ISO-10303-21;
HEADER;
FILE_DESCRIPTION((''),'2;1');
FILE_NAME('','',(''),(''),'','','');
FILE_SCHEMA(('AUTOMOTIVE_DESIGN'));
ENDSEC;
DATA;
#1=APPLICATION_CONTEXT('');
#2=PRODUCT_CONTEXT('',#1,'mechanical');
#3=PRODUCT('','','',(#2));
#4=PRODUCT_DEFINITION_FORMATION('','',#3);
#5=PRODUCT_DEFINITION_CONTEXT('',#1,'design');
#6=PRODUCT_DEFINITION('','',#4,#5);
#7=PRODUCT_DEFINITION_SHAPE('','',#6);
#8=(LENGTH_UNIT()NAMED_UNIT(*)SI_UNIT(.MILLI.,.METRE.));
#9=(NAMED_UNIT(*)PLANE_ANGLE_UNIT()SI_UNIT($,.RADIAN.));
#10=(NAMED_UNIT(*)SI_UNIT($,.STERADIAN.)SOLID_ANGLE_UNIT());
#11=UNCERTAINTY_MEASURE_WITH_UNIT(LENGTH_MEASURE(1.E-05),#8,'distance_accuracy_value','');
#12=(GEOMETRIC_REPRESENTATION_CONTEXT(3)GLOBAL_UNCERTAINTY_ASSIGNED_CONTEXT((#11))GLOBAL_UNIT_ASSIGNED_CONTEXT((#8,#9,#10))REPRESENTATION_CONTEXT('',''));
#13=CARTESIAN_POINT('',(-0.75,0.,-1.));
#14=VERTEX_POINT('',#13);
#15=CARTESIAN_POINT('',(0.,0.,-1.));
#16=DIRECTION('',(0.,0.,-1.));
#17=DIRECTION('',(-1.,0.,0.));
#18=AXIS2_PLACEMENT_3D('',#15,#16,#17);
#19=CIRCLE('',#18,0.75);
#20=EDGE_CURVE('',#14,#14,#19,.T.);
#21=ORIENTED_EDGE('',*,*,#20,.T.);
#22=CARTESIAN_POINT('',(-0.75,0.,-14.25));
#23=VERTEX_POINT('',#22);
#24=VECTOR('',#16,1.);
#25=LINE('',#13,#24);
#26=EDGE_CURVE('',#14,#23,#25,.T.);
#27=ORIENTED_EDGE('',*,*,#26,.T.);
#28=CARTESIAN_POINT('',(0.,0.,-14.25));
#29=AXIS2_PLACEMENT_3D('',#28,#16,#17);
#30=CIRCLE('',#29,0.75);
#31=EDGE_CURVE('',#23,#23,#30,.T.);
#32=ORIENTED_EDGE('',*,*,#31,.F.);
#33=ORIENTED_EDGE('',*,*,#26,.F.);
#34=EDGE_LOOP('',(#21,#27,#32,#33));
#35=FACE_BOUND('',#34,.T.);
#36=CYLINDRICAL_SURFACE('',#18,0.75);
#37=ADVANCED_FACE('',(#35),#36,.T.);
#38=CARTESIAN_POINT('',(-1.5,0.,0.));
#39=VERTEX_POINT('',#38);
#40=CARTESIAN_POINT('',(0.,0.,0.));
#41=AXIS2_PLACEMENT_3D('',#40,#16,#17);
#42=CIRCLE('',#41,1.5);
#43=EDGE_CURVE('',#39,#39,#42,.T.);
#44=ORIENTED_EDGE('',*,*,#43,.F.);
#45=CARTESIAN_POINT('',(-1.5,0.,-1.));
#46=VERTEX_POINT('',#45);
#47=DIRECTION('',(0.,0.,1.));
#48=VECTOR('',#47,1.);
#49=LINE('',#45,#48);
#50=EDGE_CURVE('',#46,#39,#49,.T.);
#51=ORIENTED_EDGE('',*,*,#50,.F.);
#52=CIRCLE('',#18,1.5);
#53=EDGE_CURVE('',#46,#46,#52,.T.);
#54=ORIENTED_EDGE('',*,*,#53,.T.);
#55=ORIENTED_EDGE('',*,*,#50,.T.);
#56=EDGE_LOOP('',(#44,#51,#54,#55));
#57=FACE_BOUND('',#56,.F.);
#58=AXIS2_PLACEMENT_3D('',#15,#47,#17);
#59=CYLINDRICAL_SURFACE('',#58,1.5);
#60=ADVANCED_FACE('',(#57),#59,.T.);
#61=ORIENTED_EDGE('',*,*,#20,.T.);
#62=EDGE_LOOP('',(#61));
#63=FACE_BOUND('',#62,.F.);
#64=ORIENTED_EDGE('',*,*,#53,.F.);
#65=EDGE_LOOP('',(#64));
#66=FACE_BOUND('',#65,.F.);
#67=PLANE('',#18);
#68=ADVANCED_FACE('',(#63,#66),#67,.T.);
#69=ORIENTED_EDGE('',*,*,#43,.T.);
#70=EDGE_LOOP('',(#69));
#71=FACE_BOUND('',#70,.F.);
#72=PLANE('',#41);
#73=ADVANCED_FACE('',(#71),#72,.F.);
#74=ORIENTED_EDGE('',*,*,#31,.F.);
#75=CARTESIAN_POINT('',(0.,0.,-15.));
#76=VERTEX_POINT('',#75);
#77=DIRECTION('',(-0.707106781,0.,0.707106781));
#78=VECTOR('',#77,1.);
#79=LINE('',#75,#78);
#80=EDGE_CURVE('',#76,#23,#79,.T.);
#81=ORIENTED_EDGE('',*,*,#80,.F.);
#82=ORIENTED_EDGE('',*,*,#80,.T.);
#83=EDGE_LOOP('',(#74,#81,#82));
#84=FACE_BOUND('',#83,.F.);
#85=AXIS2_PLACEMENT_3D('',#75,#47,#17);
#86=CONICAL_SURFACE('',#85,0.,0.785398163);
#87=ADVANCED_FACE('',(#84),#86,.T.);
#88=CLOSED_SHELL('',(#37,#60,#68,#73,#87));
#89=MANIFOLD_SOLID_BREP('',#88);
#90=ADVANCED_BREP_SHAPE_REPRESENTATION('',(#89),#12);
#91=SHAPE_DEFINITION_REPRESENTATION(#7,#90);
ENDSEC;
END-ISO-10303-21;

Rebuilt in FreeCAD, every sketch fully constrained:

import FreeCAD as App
import Part
import Sketcher
from FreeCAD import Vector
Q = App.Units.Quantity

doc = App.newDocument("Part")
body = doc.addObject("PartDesign::Body", "Body")

sketch1 = body.newObject("Sketcher::SketchObject", "Sketch")
sketch1.AttachmentSupport = (doc.getObject("XZ_Plane"), [""])
sketch1.MapMode = "FlatFace"
sketch1.addGeometry(Part.LineSegment(Vector(-1.5, 0, 0), Vector(0, 0, 0)), False)
sketch1.addGeometry(Part.LineSegment(Vector(0, 0, 0), Vector(0, -15, 0)), False)
sketch1.addGeometry(Part.LineSegment(Vector(0, -15, 0), Vector(-0.8, -14.2, 0)), False)
sketch1.addGeometry(Part.LineSegment(Vector(-0.8, -14.2, 0), Vector(-0.8, -1, 0)), False)
sketch1.addGeometry(Part.LineSegment(Vector(-0.8, -1, 0), Vector(-1.5, -1, 0)), False)
sketch1.addGeometry(Part.LineSegment(Vector(-1.5, -1, 0), Vector(-1.5, 0, 0)), False)
sketch1.addConstraint(Sketcher.Constraint("Coincident", 0, 2, 1, 1))
sketch1.addConstraint(Sketcher.Constraint("Coincident", 1, 2, 2, 1))
sketch1.addConstraint(Sketcher.Constraint("Coincident", 2, 2, 3, 1))
sketch1.addConstraint(Sketcher.Constraint("Coincident", 3, 2, 4, 1))
sketch1.addConstraint(Sketcher.Constraint("Coincident", 4, 2, 5, 1))
sketch1.addConstraint(Sketcher.Constraint("Coincident", 5, 2, 0, 1))
sketch1.addConstraint(Sketcher.Constraint("Horizontal", 0))
sketch1.addConstraint(Sketcher.Constraint("Vertical", 1))
sketch1.addConstraint(Sketcher.Constraint("Vertical", 3))
sketch1.addConstraint(Sketcher.Constraint("Horizontal", 4))
sketch1.addConstraint(Sketcher.Constraint("Vertical", 5))
sketch1.addConstraint(Sketcher.Constraint("Coincident", 0, 2, -1, 1))
sketch1.addConstraint(Sketcher.Constraint("DistanceY", 5, 1, 5, 2, 1.0))
sketch1.addConstraint(Sketcher.Constraint("DistanceX", 0, 1, 0, 2, 1.5))
sketch1.addConstraint(Sketcher.Constraint("DistanceY", 1, 2, 3, 2, 14.0))
sketch1.addConstraint(Sketcher.Constraint("Angle", 2, Q("135 deg")))
sketch1.addConstraint(Sketcher.Constraint("DistanceX", 4, 2, 4, 1, 0.75))
revolution = body.newObject("PartDesign::Revolution", "Revolution")
revolution.Profile = sketch1
revolution.ReferenceAxis = (sketch1, ["V_Axis"])
revolution.Angle = 360

doc.recompute()
